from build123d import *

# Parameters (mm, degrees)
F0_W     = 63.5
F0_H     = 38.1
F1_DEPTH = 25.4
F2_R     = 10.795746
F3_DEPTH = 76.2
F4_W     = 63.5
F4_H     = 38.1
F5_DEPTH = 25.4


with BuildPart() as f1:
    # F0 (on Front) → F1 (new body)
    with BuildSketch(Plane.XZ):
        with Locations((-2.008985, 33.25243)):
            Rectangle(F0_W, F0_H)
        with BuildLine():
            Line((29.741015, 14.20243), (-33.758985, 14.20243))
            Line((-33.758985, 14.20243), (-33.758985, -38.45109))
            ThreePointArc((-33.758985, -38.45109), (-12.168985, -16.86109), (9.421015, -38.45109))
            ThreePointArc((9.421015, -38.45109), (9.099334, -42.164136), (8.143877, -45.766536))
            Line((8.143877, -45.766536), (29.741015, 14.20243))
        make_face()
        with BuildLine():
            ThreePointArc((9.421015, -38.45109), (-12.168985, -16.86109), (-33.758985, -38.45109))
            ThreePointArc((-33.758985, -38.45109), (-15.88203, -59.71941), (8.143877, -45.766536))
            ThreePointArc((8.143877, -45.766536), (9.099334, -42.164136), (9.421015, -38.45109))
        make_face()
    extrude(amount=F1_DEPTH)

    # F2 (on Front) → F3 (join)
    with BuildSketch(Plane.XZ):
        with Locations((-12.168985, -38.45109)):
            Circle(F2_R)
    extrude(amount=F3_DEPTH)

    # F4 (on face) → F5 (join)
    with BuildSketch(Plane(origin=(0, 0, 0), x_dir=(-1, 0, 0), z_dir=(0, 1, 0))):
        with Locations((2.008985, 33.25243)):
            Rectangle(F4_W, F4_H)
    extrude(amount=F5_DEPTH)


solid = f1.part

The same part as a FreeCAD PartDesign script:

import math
import FreeCAD as App
import Part
import Sketcher

V = App.Vector
Q = App.Units.Quantity


def add_polygon(sketch, points):
    """Adds a closed chain of lines whose ends are joined by coincident constraints."""
    first, n = sketch.GeometryCount, len(points)
    for a, b in zip(points, points[1:] + points[:1]):
        sketch.addGeometry(Part.LineSegment(App.Vector(*a, 0), App.Vector(*b, 0)), False)
    for i in range(n):
        sketch.addConstraint(Sketcher.Constraint("Coincident", first + i, 2, first + (i + 1) % n, 1))

doc = App.newDocument("Part")
params = doc.addObject("Spreadsheet::Sheet", "Params")
for row, (alias, value) in enumerate([
    ("sketch1_radius", "0.85 in"),
    ("sketch1_width", "2.5 in"),
    ("sketch1_height", "1.5 in"),
    ("pad1_length", "1 in"),
    ("pad2_length", "3 in"),
    ("sketch3_width", "2.5 in"),
    ("sketch3_height", "1.5 in"),
    ("pad3_length", "1 in"),
], start=1):
    params.set(f"A{row}", alias)
    params.set(f"B{row}", "=" + value)
    params.setAlias(f"B{row}", alias)

body = doc.addObject("PartDesign::Body", "Body")

# Sketch on XZ plane
sketch1 = body.newObject("Sketcher::SketchObject", "Sketch")
sketch1.AttachmentSupport = (doc.getObject("XZ_Plane"), [""])
sketch1.MapMode = "FlatFace"
sketch1.addGeometry([
    Part.LineSegment(V(-34, 52, 0), V(-34, -38, 0)),  # 0
    Part.ArcOfCircle(Part.Circle(V(-12, -38, 0), V(0, 0, 1), 22), math.radians(180), math.radians(340)),  # 1
    Part.LineSegment(V(8, -46, 0), V(30, 14, 0)),  # 2
    Part.LineSegment(V(30, 14, 0), V(30, 52, 0)),  # 3
    Part.LineSegment(V(30, 52, 0), V(-34, 52, 0)),  # 4
], False)
sketch1.addConstraint([
    Sketcher.Constraint("Tangent", 0, 2, 1, 1),
    Sketcher.Constraint("Tangent", 1, 2, 2, 1),
    Sketcher.Constraint("Coincident", 2, 2, 3, 1),
    Sketcher.Constraint("Coincident", 3, 2, 4, 1),
    Sketcher.Constraint("Coincident", 4, 2, 0, 1),
    Sketcher.Constraint("Vertical", 0),
    Sketcher.Constraint("Vertical", 3),
    Sketcher.Constraint("Horizontal", 4),
    Sketcher.Constraint("Radius", 1, Q("0.85 in")),
    Sketcher.Constraint("DistanceX", 4, 2, 4, 1, Q("2.5 in")),
    Sketcher.Constraint("DistanceY", 3, 1, 3, 2, Q("1.5 in")),
    Sketcher.Constraint("DistanceY", 0, 2, 0, 1, Q("90.75352 mm")),
    Sketcher.Constraint("DistanceY", 1, 3, -1, 1, Q("38.451091 mm")),
    Sketcher.Constraint("DistanceX", 1, 3, -1, 1, Q("12.168985 mm")),
])
sketch1.setExpression("Constraints[8]", "Params.sketch1_radius")
sketch1.setExpression("Constraints[9]", "Params.sketch1_width")
sketch1.setExpression("Constraints[10]", "Params.sketch1_height")
pad1 = body.newObject("PartDesign::Pad", "Pad")
pad1.Profile = sketch1
pad1.setExpression("Length", "Params.pad1_length")

# Sketch on XZ plane
sketch2 = body.newObject("Sketcher::SketchObject", "Sketch001")
sketch2.AttachmentSupport = (doc.getObject("XZ_Plane"), [""])
sketch2.MapMode = "FlatFace"
sketch2.addGeometry(Part.Circle(V(-12, -38, 0), V(0, 0, 1), 11), False)
sketch2.addConstraint([
    Sketcher.Constraint("Diameter", 0, Q("21.591492 mm")),
    Sketcher.Constraint("DistanceY", 0, 3, -1, 1, Q("38.45109 mm")),
    Sketcher.Constraint("DistanceX", 0, 3, -1, 1, Q("12.168985 mm")),
])
pad2 = body.newObject("PartDesign::Pad", "Pad001")
pad2.Profile = sketch2
pad2.setExpression("Length", "Params.pad2_length")

# Sketch on XZ plane
sketch3 = body.newObject("Sketcher::SketchObject", "Sketch002")
sketch3.AttachmentSupport = (doc.getObject("XZ_Plane"), [""])
sketch3.MapMode = "FlatFace"
add_polygon(sketch3, [(30, 52), (30, 14), (-34, 14), (-34, 52)])  # lines 0-3
sketch3.addConstraint([
    Sketcher.Constraint("Vertical", 0),
    Sketcher.Constraint("Horizontal", 1),
    Sketcher.Constraint("Vertical", 2),
    Sketcher.Constraint("Horizontal", 3),
    Sketcher.Constraint("DistanceX", 1, 2, 1, 1, Q("2.5 in")),
    Sketcher.Constraint("DistanceY", 0, 2, 0, 1, Q("1.5 in")),
    Sketcher.Constraint("DistanceY", -1, 1, 0, 2, Q("14.20243 mm")),
    Sketcher.Constraint("DistanceX", -1, 1, 0, 2, Q("29.741015 mm")),
])
sketch3.setExpression("Constraints[8]", "Params.sketch3_width")
sketch3.setExpression("Constraints[9]", "Params.sketch3_height")
pad3 = body.newObject("PartDesign::Pad", "Pad002")
pad3.Profile = sketch3
pad3.setExpression("Length", "Params.pad3_length")
pad3.Reversed = True

doc.recompute()
